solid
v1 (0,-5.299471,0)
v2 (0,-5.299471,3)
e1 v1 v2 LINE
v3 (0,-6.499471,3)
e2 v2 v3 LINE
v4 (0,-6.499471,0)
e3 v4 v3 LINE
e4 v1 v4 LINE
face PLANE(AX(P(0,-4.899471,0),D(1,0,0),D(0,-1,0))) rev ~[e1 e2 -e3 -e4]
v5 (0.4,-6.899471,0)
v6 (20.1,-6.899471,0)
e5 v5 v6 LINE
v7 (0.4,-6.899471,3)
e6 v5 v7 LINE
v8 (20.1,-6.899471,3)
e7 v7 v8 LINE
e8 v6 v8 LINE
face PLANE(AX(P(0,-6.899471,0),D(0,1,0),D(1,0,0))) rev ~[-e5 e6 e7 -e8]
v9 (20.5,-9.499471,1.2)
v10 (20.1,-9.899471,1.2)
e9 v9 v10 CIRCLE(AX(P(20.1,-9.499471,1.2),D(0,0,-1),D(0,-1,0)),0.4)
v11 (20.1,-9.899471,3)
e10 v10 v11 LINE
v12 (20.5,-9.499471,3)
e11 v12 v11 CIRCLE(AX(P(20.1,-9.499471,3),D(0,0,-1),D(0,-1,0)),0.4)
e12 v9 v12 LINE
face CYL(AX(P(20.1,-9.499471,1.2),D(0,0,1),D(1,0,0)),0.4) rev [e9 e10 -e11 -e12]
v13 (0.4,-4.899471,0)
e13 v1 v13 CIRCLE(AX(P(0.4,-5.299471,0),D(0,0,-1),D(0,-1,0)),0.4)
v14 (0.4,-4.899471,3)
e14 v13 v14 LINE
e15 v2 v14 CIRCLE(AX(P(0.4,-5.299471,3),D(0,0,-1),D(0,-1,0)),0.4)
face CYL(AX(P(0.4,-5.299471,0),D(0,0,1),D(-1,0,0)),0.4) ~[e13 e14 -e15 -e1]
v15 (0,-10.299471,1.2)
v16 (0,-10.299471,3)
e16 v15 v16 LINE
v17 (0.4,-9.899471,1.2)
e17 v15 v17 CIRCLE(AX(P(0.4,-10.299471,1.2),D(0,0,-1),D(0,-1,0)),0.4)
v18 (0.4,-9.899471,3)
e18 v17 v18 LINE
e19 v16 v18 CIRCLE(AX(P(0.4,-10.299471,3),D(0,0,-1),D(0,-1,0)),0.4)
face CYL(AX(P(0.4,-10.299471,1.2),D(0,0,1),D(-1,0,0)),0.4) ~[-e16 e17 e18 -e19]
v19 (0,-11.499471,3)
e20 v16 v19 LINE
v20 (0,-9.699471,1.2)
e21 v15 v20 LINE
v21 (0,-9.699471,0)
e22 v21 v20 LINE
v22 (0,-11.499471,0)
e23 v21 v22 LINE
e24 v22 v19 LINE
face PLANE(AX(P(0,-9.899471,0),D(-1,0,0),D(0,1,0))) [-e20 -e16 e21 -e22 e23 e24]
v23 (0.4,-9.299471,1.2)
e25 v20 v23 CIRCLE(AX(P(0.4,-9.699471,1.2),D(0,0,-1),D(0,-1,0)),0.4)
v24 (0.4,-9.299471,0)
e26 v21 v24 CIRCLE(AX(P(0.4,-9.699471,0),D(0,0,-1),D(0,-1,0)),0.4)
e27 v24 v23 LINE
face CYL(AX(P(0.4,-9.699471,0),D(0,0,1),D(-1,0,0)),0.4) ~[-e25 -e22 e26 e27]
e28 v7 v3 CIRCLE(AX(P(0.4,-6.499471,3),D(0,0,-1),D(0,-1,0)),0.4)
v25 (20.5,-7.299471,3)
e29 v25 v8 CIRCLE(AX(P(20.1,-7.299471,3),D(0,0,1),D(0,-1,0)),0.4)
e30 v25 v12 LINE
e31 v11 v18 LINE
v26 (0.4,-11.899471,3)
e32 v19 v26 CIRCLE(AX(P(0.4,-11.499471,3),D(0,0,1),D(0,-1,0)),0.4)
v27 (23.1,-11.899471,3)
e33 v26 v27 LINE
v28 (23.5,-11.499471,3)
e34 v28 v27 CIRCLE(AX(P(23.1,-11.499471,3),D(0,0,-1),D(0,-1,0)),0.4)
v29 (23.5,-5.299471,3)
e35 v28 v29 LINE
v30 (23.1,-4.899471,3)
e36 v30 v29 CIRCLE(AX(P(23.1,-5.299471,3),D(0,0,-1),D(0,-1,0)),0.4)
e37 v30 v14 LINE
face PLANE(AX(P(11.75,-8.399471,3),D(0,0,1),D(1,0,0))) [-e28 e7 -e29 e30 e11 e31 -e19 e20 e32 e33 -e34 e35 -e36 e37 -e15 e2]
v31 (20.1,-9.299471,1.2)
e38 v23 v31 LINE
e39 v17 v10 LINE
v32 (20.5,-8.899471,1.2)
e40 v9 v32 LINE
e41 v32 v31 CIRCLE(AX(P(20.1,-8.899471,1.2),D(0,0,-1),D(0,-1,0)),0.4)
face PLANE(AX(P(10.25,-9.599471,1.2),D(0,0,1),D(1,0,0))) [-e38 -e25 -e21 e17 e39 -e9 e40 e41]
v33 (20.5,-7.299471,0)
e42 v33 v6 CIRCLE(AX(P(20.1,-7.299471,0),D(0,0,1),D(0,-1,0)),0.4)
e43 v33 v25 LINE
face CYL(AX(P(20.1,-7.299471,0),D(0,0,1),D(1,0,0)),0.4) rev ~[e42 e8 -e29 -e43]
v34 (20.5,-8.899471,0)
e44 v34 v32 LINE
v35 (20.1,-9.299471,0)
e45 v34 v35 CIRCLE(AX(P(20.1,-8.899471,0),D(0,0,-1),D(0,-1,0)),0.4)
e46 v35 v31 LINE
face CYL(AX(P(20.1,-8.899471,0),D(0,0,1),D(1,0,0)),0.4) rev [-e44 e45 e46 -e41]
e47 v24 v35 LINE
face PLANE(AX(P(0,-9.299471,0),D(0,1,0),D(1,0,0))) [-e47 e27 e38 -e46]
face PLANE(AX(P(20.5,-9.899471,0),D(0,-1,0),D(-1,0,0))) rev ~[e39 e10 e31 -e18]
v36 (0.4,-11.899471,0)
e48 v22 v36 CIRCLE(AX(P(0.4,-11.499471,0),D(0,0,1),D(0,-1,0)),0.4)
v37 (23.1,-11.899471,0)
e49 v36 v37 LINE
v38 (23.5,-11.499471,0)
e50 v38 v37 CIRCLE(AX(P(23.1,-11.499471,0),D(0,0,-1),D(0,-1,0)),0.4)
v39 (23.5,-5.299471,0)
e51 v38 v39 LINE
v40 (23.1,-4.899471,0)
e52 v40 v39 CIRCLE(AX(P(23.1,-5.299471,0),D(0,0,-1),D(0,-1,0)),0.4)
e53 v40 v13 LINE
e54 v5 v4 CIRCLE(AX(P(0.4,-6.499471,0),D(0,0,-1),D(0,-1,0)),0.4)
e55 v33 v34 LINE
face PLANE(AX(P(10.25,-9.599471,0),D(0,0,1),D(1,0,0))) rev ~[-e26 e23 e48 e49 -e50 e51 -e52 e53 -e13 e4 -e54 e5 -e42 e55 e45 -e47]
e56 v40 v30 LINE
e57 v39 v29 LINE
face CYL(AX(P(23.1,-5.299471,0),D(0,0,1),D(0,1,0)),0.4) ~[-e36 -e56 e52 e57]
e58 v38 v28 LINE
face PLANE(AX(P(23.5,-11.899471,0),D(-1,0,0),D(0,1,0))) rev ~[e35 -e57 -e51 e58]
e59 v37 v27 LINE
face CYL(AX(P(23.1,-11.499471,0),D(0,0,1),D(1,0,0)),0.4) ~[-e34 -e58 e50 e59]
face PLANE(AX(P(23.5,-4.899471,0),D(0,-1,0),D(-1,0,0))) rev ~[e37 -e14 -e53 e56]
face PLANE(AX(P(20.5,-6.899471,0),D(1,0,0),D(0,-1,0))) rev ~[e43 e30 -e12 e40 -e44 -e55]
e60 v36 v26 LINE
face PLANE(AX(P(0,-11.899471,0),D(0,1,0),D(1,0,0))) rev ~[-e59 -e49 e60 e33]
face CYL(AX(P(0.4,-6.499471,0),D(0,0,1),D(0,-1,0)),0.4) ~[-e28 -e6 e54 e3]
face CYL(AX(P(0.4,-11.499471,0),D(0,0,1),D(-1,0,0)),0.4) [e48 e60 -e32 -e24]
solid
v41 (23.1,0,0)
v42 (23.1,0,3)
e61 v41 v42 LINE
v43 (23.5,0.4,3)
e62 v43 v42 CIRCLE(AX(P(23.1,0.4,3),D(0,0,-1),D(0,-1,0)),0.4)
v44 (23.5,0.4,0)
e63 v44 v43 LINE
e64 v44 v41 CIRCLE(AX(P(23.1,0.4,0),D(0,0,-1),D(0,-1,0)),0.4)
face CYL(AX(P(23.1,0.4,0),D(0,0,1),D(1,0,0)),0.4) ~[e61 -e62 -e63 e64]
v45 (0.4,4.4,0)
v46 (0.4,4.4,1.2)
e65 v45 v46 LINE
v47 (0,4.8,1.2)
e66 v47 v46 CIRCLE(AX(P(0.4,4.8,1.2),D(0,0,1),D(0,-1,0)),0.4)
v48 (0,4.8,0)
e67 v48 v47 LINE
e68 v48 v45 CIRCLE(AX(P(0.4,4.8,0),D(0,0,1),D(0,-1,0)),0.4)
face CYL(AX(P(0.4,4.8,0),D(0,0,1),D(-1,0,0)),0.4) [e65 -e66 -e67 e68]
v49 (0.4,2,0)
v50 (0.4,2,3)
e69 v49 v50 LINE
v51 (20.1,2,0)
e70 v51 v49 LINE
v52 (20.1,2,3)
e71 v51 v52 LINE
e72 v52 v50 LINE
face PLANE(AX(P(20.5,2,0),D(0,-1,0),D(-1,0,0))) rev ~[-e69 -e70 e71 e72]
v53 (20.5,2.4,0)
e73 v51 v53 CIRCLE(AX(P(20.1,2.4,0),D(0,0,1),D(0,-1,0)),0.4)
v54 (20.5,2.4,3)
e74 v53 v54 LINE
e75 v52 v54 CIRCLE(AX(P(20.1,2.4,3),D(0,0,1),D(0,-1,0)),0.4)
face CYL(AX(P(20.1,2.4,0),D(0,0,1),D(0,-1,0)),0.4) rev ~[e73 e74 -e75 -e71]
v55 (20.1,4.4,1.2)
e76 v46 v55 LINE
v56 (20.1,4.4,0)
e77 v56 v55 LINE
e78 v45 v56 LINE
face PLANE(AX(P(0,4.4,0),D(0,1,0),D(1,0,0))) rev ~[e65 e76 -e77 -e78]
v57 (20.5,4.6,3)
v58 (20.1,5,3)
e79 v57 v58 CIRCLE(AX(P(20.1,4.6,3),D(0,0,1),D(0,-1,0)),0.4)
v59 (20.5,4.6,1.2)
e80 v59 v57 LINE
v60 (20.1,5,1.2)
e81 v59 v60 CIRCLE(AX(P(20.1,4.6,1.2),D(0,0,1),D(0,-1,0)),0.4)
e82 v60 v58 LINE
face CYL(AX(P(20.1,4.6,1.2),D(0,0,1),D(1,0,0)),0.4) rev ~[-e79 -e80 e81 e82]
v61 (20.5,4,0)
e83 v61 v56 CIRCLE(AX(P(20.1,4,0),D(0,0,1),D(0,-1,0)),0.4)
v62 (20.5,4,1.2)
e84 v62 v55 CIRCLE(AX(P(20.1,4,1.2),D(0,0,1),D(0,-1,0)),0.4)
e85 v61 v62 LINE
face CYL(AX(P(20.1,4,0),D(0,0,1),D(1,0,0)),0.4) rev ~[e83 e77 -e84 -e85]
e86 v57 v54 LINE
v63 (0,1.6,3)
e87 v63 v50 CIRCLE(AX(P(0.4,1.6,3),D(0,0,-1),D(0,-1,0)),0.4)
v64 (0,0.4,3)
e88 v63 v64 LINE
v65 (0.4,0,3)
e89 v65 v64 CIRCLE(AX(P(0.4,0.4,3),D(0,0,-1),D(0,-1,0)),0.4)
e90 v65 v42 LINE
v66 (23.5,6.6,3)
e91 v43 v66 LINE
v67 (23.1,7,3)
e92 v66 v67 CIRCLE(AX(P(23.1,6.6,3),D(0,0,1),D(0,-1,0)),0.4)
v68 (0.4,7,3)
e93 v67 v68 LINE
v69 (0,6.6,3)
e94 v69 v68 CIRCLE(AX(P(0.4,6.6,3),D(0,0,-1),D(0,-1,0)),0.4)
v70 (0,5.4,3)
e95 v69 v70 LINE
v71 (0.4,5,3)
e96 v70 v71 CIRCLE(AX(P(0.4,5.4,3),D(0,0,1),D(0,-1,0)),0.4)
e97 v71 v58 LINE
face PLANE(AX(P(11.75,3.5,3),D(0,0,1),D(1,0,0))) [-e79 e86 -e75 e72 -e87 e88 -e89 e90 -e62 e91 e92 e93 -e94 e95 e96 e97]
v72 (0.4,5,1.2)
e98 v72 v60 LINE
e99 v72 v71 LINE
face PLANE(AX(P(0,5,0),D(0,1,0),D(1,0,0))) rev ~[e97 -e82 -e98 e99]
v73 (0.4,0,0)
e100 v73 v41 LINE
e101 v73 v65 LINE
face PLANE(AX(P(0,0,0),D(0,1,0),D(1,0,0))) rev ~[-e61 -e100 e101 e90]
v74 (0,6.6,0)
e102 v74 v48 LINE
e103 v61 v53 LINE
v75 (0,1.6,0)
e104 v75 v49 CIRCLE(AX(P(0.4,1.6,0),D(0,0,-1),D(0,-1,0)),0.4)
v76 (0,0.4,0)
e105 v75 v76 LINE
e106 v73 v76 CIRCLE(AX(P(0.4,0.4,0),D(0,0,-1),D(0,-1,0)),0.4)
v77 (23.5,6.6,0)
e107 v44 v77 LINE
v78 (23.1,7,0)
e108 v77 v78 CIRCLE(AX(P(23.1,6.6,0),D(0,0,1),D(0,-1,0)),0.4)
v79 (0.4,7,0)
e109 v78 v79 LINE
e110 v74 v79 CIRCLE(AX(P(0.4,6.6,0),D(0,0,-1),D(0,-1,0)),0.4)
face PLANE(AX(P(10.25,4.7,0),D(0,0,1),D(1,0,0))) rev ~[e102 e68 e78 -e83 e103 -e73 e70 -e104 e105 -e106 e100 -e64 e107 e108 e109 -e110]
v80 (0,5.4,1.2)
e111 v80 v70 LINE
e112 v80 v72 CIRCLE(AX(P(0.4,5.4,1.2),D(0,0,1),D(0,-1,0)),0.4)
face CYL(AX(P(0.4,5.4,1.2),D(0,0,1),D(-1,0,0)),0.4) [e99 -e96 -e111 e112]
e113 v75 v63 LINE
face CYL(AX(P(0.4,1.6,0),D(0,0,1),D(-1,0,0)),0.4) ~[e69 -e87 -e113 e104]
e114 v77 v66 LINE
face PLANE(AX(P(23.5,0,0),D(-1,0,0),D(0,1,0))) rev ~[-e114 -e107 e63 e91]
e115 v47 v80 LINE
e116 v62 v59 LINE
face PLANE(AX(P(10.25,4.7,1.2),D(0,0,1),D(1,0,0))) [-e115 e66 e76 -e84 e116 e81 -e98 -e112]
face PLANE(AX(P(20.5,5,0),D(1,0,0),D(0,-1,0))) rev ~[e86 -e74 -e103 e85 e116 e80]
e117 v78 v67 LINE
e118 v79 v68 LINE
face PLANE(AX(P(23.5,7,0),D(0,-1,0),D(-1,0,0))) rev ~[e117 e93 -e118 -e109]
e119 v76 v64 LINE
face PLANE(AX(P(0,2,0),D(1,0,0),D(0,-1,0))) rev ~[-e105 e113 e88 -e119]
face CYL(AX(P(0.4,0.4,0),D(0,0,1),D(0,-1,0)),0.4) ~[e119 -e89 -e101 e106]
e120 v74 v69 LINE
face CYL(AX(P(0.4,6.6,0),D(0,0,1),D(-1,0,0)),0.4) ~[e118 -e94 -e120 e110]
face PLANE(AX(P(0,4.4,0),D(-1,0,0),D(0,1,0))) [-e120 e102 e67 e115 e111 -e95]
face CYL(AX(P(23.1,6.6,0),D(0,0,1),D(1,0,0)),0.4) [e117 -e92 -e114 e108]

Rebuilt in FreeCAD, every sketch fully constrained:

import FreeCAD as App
import Part
import Sketcher

V = App.Vector
Q = App.Units.Quantity


def edges_at(feature, points):
    """Names of the edges that pass closest to the given points."""
    edges = feature.Shape.Edges
    near = lambda p: min(range(len(edges)), key=lambda i: edges[i].distToShape(Part.Vertex(*p))[0])
    return sorted({f"Edge{near(p) + 1}" for p in points})


def add_polygon(sketch, points):
    """Adds a closed chain of lines whose ends are joined by coincident constraints."""
    first, n = sketch.GeometryCount, len(points)
    for a, b in zip(points, points[1:] + points[:1]):
        sketch.addGeometry(Part.LineSegment(App.Vector(*a, 0), App.Vector(*b, 0)), False)
    for i in range(n):
        sketch.addConstraint(Sketcher.Constraint("Coincident", first + i, 2, first + (i + 1) % n, 1))

doc = App.newDocument("Part")
params = doc.addObject("Spreadsheet::Sheet", "Params")
for row, (alias, value) in enumerate([
    ("sketch1_height", "2 mm"),
    ("sketch1_height2", "7 mm"),
    ("sketch1_width", "23.5 mm"),
    ("sketch1_width2", "20.5 mm"),
    ("pad1_length", "3 mm"),
    ("sketch2_height", "2 mm"),
    ("sketch2_height2", "7 mm"),
    ("sketch2_width", "20.5 mm"),
    ("sketch2_width2", "23.5 mm"),
    ("pad2_length", "3 mm"),
    ("sketch3_width", "20.5 mm"),
    ("sketch3_height", "0.6 mm"),
    ("pad3_length", "1.2 mm"),
    ("fillet_radius", "0.4 mm"),
    ("fillet2_radius", "0.4 mm"),
], start=1):
    params.set(f"A{row}", alias)
    params.set(f"B{row}", "=" + value)
    params.setAlias(f"B{row}", alias)

body = doc.addObject("PartDesign::Body", "Body")

sketch1 = body.newObject("Sketcher::SketchObject", "Sketch")
sketch1.AttachmentSupport = (doc.getObject("XY_Plane"), [""])
sketch1.MapMode = "FlatFace"
add_polygon(sketch1, [(0, 2), (0, 0), (23.5, 0), (23.5, 7), (0, 7), (0, 5), (20.5, 5), (20.5, 2)])
sketch1.addConstraint(Sketcher.Constraint("Vertical", 0))
sketch1.addConstraint(Sketcher.Constraint("Horizontal", 1))
sketch1.addConstraint(Sketcher.Constraint("Vertical", 2))
sketch1.addConstraint(Sketcher.Constraint("Horizontal", 3))
sketch1.addConstraint(Sketcher.Constraint("Vertical", 4))
sketch1.addConstraint(Sketcher.Constraint("Horizontal", 5))
sketch1.addConstraint(Sketcher.Constraint("Vertical", 6))
sketch1.addConstraint(Sketcher.Constraint("Horizontal", 7))
sketch1.addConstraint(Sketcher.Constraint("Coincident", 0, 2, -1, 1))
sketch1.addConstraint(Sketcher.Constraint("PointOnObject", 3, 2, -2))
sketch1.addConstraint(Sketcher.Constraint("Equal", 0, 4))
sketch1.addConstraint(Sketcher.Constraint("DistanceY", 0, 2, 0, 1, Q("2 mm")))
sketch1.addConstraint(Sketcher.Constraint("DistanceY", 2, 1, 2, 2, Q("7 mm")))
sketch1.addConstraint(Sketcher.Constraint("DistanceX", 1, 1, 1, 2, Q("23.5 mm")))
sketch1.addConstraint(Sketcher.Constraint("DistanceX", 5, 1, 5, 2, Q("20.5 mm")))
sketch1.setExpression("Constraints[19]", "Params.sketch1_height")
sketch1.setExpression("Constraints[20]", "Params.sketch1_height2")
sketch1.setExpression("Constraints[21]", "Params.sketch1_width")
sketch1.setExpression("Constraints[22]", "Params.sketch1_width2")
pad1 = body.newObject("PartDesign::Pad", "Pad")
pad1.Profile = sketch1
pad1.setExpression("Length", "Params.pad1_length")
body2 = doc.addObject("PartDesign::Body", "Body001")

sketch2 = body2.newObject("Sketcher::SketchObject", "Sketch001")
sketch2.AttachmentSupport = (doc.getObject("XY_Plane001"), [""])
sketch2.MapMode = "FlatFace"
add_polygon(sketch2, [(20.5, -9.9), (0, -9.9), (0, -11.9), (23.5, -11.9), (23.5, -4.9), (0, -4.9), (0, -6.9), (20.5, -6.9)])
sketch2.addConstraint(Sketcher.Constraint("Horizontal", 0))
sketch2.addConstraint(Sketcher.Constraint("Vertical", 1))
sketch2.addConstraint(Sketcher.Constraint("Horizontal", 2))
sketch2.addConstraint(Sketcher.Constraint("Vertical", 3))
sketch2.addConstraint(Sketcher.Constraint("Horizontal", 4))
sketch2.addConstraint(Sketcher.Constraint("Vertical", 5))
sketch2.addConstraint(Sketcher.Constraint("Horizontal", 6))
sketch2.addConstraint(Sketcher.Constraint("Vertical", 7))
sketch2.addConstraint(Sketcher.Constraint("PointOnObject", 0, 2, -2))
sketch2.addConstraint(Sketcher.Constraint("PointOnObject", 4, 2, -2))
sketch2.addConstraint(Sketcher.Constraint("Equal", 1, 5))
sketch2.addConstraint(Sketcher.Constraint("DistanceY", 1, 2, 1, 1, Q("2 mm")))
sketch2.addConstraint(Sketcher.Constraint("DistanceY", 3, 1, 3, 2, Q("7 mm")))
sketch2.addConstraint(Sketcher.Constraint("DistanceX", 0, 2, 0, 1, Q("20.5 mm")))
sketch2.addConstraint(Sketcher.Constraint("DistanceX", 2, 1, 2, 2, Q("23.5 mm")))
sketch2.addConstraint(Sketcher.Constraint("DistanceY", 0, 2, -1, 1, Q("9.899471 mm")))
sketch2.setExpression("Constraints[19]", "Params.sketch2_height")
sketch2.setExpression("Constraints[20]", "Params.sketch2_height2")
sketch2.setExpression("Constraints[21]", "Params.sketch2_width")
sketch2.setExpression("Constraints[22]", "Params.sketch2_width2")
pad2 = body2.newObject("PartDesign::Pad", "Pad001")
pad2.Profile = sketch2
pad2.setExpression("Length", "Params.pad2_length")
body.AllowCompound = True
doc.recompute()

boolean = body.newObject("PartDesign::Boolean", "Boolean")
boolean.Type = "Fuse"
boolean.addObjects([body2])

sketch3 = body.newObject("Sketcher::SketchObject", "Sketch002")
sketch3.AttachmentSupport = (doc.getObject("XY_Plane"), [""])
sketch3.MapMode = "FlatFace"
add_polygon(sketch3, [(0, -9.3), (0, -9.9), (20.5, -9.9), (20.5, -9.3)])
add_polygon(sketch3, [(0, 5), (0, 4.4), (20.5, 4.4), (20.5, 5)])
sketch3.addConstraint(Sketcher.Constraint("Vertical", 0))
sketch3.addConstraint(Sketcher.Constraint("Horizontal", 1))
sketch3.addConstraint(Sketcher.Constraint("Vertical", 2))
sketch3.addConstraint(Sketcher.Constraint("Horizontal", 3))
sketch3.addConstraint(Sketcher.Constraint("Vertical", 4))
sketch3.addConstraint(Sketcher.Constraint("Horizontal", 5))
sketch3.addConstraint(Sketcher.Constraint("Vertical", 6))
sketch3.addConstraint(Sketcher.Constraint("Horizontal", 7))
sketch3.addConstraint(Sketcher.Constraint("PointOnObject", 0, 2, -2))
sketch3.addConstraint(Sketcher.Constraint("PointOnObject", 4, 2, -2))
sketch3.addConstraint(Sketcher.Constraint("Vertical", 2, 2, 5, 2))
sketch3.addConstraint(Sketcher.Constraint("Equal", 2, 4))
sketch3.addConstraint(Sketcher.Constraint("DistanceX", 1, 1, 1, 2, Q("20.5 mm")))
sketch3.addConstraint(Sketcher.Constraint("DistanceY", 0, 2, 0, 1, Q("0.6 mm")))
sketch3.addConstraint(Sketcher.Constraint("DistanceY", -1, 1, 6, 2, Q("5 mm")))
sketch3.addConstraint(Sketcher.Constraint("DistanceY", 0, 2, -1, 1, Q("9.899471 mm")))
sketch3.setExpression("Constraints[20]", "Params.sketch3_width")
sketch3.setExpression("Constraints[21]", "Params.sketch3_height")
pad3 = body.newObject("PartDesign::Pad", "Pad002")
pad3.Profile = sketch3
pad3.setExpression("Length", "Params.pad3_length")
doc.recompute()

fillet = body.newObject("PartDesign::Fillet", "Fillet")
fillet.Base = (pad3, edges_at(pad3, [
    (0, 5, 2.1),
    (0, 7, 1.5),
    (23.5, 7, 1.5),
    (23.5, 0, 1.5),
    (0, 0, 1.5),
    (0, 2, 1.5),
    (20.5, 2, 1.5),
    (20.5, 5, 2.1),
    (0, 4.4, 0.6),
    (20.5, 4.4, 0.6),
]))
fillet.setExpression("Radius", "Params.fillet_radius")
doc.recompute()

fillet2 = body.newObject("PartDesign::Fillet", "Fillet001")
fillet2.Base = (fillet, edges_at(fillet, [
    (23.5, -4.899, 1.5),
    (23.5, -11.899, 1.5),
    (0, -11.899, 1.5),
    (0, -9.899, 2.1),
    (20.5, -9.899, 2.1),
    (20.5, -6.899, 1.5),
    (0, -6.899, 1.5),
    (0, -4.899, 1.5),
    (0, -9.299, 0.6),
    (20.5, -9.299, 0.6),
]))
fillet2.setExpression("Radius", "Params.fillet2_radius")

doc.recompute()
